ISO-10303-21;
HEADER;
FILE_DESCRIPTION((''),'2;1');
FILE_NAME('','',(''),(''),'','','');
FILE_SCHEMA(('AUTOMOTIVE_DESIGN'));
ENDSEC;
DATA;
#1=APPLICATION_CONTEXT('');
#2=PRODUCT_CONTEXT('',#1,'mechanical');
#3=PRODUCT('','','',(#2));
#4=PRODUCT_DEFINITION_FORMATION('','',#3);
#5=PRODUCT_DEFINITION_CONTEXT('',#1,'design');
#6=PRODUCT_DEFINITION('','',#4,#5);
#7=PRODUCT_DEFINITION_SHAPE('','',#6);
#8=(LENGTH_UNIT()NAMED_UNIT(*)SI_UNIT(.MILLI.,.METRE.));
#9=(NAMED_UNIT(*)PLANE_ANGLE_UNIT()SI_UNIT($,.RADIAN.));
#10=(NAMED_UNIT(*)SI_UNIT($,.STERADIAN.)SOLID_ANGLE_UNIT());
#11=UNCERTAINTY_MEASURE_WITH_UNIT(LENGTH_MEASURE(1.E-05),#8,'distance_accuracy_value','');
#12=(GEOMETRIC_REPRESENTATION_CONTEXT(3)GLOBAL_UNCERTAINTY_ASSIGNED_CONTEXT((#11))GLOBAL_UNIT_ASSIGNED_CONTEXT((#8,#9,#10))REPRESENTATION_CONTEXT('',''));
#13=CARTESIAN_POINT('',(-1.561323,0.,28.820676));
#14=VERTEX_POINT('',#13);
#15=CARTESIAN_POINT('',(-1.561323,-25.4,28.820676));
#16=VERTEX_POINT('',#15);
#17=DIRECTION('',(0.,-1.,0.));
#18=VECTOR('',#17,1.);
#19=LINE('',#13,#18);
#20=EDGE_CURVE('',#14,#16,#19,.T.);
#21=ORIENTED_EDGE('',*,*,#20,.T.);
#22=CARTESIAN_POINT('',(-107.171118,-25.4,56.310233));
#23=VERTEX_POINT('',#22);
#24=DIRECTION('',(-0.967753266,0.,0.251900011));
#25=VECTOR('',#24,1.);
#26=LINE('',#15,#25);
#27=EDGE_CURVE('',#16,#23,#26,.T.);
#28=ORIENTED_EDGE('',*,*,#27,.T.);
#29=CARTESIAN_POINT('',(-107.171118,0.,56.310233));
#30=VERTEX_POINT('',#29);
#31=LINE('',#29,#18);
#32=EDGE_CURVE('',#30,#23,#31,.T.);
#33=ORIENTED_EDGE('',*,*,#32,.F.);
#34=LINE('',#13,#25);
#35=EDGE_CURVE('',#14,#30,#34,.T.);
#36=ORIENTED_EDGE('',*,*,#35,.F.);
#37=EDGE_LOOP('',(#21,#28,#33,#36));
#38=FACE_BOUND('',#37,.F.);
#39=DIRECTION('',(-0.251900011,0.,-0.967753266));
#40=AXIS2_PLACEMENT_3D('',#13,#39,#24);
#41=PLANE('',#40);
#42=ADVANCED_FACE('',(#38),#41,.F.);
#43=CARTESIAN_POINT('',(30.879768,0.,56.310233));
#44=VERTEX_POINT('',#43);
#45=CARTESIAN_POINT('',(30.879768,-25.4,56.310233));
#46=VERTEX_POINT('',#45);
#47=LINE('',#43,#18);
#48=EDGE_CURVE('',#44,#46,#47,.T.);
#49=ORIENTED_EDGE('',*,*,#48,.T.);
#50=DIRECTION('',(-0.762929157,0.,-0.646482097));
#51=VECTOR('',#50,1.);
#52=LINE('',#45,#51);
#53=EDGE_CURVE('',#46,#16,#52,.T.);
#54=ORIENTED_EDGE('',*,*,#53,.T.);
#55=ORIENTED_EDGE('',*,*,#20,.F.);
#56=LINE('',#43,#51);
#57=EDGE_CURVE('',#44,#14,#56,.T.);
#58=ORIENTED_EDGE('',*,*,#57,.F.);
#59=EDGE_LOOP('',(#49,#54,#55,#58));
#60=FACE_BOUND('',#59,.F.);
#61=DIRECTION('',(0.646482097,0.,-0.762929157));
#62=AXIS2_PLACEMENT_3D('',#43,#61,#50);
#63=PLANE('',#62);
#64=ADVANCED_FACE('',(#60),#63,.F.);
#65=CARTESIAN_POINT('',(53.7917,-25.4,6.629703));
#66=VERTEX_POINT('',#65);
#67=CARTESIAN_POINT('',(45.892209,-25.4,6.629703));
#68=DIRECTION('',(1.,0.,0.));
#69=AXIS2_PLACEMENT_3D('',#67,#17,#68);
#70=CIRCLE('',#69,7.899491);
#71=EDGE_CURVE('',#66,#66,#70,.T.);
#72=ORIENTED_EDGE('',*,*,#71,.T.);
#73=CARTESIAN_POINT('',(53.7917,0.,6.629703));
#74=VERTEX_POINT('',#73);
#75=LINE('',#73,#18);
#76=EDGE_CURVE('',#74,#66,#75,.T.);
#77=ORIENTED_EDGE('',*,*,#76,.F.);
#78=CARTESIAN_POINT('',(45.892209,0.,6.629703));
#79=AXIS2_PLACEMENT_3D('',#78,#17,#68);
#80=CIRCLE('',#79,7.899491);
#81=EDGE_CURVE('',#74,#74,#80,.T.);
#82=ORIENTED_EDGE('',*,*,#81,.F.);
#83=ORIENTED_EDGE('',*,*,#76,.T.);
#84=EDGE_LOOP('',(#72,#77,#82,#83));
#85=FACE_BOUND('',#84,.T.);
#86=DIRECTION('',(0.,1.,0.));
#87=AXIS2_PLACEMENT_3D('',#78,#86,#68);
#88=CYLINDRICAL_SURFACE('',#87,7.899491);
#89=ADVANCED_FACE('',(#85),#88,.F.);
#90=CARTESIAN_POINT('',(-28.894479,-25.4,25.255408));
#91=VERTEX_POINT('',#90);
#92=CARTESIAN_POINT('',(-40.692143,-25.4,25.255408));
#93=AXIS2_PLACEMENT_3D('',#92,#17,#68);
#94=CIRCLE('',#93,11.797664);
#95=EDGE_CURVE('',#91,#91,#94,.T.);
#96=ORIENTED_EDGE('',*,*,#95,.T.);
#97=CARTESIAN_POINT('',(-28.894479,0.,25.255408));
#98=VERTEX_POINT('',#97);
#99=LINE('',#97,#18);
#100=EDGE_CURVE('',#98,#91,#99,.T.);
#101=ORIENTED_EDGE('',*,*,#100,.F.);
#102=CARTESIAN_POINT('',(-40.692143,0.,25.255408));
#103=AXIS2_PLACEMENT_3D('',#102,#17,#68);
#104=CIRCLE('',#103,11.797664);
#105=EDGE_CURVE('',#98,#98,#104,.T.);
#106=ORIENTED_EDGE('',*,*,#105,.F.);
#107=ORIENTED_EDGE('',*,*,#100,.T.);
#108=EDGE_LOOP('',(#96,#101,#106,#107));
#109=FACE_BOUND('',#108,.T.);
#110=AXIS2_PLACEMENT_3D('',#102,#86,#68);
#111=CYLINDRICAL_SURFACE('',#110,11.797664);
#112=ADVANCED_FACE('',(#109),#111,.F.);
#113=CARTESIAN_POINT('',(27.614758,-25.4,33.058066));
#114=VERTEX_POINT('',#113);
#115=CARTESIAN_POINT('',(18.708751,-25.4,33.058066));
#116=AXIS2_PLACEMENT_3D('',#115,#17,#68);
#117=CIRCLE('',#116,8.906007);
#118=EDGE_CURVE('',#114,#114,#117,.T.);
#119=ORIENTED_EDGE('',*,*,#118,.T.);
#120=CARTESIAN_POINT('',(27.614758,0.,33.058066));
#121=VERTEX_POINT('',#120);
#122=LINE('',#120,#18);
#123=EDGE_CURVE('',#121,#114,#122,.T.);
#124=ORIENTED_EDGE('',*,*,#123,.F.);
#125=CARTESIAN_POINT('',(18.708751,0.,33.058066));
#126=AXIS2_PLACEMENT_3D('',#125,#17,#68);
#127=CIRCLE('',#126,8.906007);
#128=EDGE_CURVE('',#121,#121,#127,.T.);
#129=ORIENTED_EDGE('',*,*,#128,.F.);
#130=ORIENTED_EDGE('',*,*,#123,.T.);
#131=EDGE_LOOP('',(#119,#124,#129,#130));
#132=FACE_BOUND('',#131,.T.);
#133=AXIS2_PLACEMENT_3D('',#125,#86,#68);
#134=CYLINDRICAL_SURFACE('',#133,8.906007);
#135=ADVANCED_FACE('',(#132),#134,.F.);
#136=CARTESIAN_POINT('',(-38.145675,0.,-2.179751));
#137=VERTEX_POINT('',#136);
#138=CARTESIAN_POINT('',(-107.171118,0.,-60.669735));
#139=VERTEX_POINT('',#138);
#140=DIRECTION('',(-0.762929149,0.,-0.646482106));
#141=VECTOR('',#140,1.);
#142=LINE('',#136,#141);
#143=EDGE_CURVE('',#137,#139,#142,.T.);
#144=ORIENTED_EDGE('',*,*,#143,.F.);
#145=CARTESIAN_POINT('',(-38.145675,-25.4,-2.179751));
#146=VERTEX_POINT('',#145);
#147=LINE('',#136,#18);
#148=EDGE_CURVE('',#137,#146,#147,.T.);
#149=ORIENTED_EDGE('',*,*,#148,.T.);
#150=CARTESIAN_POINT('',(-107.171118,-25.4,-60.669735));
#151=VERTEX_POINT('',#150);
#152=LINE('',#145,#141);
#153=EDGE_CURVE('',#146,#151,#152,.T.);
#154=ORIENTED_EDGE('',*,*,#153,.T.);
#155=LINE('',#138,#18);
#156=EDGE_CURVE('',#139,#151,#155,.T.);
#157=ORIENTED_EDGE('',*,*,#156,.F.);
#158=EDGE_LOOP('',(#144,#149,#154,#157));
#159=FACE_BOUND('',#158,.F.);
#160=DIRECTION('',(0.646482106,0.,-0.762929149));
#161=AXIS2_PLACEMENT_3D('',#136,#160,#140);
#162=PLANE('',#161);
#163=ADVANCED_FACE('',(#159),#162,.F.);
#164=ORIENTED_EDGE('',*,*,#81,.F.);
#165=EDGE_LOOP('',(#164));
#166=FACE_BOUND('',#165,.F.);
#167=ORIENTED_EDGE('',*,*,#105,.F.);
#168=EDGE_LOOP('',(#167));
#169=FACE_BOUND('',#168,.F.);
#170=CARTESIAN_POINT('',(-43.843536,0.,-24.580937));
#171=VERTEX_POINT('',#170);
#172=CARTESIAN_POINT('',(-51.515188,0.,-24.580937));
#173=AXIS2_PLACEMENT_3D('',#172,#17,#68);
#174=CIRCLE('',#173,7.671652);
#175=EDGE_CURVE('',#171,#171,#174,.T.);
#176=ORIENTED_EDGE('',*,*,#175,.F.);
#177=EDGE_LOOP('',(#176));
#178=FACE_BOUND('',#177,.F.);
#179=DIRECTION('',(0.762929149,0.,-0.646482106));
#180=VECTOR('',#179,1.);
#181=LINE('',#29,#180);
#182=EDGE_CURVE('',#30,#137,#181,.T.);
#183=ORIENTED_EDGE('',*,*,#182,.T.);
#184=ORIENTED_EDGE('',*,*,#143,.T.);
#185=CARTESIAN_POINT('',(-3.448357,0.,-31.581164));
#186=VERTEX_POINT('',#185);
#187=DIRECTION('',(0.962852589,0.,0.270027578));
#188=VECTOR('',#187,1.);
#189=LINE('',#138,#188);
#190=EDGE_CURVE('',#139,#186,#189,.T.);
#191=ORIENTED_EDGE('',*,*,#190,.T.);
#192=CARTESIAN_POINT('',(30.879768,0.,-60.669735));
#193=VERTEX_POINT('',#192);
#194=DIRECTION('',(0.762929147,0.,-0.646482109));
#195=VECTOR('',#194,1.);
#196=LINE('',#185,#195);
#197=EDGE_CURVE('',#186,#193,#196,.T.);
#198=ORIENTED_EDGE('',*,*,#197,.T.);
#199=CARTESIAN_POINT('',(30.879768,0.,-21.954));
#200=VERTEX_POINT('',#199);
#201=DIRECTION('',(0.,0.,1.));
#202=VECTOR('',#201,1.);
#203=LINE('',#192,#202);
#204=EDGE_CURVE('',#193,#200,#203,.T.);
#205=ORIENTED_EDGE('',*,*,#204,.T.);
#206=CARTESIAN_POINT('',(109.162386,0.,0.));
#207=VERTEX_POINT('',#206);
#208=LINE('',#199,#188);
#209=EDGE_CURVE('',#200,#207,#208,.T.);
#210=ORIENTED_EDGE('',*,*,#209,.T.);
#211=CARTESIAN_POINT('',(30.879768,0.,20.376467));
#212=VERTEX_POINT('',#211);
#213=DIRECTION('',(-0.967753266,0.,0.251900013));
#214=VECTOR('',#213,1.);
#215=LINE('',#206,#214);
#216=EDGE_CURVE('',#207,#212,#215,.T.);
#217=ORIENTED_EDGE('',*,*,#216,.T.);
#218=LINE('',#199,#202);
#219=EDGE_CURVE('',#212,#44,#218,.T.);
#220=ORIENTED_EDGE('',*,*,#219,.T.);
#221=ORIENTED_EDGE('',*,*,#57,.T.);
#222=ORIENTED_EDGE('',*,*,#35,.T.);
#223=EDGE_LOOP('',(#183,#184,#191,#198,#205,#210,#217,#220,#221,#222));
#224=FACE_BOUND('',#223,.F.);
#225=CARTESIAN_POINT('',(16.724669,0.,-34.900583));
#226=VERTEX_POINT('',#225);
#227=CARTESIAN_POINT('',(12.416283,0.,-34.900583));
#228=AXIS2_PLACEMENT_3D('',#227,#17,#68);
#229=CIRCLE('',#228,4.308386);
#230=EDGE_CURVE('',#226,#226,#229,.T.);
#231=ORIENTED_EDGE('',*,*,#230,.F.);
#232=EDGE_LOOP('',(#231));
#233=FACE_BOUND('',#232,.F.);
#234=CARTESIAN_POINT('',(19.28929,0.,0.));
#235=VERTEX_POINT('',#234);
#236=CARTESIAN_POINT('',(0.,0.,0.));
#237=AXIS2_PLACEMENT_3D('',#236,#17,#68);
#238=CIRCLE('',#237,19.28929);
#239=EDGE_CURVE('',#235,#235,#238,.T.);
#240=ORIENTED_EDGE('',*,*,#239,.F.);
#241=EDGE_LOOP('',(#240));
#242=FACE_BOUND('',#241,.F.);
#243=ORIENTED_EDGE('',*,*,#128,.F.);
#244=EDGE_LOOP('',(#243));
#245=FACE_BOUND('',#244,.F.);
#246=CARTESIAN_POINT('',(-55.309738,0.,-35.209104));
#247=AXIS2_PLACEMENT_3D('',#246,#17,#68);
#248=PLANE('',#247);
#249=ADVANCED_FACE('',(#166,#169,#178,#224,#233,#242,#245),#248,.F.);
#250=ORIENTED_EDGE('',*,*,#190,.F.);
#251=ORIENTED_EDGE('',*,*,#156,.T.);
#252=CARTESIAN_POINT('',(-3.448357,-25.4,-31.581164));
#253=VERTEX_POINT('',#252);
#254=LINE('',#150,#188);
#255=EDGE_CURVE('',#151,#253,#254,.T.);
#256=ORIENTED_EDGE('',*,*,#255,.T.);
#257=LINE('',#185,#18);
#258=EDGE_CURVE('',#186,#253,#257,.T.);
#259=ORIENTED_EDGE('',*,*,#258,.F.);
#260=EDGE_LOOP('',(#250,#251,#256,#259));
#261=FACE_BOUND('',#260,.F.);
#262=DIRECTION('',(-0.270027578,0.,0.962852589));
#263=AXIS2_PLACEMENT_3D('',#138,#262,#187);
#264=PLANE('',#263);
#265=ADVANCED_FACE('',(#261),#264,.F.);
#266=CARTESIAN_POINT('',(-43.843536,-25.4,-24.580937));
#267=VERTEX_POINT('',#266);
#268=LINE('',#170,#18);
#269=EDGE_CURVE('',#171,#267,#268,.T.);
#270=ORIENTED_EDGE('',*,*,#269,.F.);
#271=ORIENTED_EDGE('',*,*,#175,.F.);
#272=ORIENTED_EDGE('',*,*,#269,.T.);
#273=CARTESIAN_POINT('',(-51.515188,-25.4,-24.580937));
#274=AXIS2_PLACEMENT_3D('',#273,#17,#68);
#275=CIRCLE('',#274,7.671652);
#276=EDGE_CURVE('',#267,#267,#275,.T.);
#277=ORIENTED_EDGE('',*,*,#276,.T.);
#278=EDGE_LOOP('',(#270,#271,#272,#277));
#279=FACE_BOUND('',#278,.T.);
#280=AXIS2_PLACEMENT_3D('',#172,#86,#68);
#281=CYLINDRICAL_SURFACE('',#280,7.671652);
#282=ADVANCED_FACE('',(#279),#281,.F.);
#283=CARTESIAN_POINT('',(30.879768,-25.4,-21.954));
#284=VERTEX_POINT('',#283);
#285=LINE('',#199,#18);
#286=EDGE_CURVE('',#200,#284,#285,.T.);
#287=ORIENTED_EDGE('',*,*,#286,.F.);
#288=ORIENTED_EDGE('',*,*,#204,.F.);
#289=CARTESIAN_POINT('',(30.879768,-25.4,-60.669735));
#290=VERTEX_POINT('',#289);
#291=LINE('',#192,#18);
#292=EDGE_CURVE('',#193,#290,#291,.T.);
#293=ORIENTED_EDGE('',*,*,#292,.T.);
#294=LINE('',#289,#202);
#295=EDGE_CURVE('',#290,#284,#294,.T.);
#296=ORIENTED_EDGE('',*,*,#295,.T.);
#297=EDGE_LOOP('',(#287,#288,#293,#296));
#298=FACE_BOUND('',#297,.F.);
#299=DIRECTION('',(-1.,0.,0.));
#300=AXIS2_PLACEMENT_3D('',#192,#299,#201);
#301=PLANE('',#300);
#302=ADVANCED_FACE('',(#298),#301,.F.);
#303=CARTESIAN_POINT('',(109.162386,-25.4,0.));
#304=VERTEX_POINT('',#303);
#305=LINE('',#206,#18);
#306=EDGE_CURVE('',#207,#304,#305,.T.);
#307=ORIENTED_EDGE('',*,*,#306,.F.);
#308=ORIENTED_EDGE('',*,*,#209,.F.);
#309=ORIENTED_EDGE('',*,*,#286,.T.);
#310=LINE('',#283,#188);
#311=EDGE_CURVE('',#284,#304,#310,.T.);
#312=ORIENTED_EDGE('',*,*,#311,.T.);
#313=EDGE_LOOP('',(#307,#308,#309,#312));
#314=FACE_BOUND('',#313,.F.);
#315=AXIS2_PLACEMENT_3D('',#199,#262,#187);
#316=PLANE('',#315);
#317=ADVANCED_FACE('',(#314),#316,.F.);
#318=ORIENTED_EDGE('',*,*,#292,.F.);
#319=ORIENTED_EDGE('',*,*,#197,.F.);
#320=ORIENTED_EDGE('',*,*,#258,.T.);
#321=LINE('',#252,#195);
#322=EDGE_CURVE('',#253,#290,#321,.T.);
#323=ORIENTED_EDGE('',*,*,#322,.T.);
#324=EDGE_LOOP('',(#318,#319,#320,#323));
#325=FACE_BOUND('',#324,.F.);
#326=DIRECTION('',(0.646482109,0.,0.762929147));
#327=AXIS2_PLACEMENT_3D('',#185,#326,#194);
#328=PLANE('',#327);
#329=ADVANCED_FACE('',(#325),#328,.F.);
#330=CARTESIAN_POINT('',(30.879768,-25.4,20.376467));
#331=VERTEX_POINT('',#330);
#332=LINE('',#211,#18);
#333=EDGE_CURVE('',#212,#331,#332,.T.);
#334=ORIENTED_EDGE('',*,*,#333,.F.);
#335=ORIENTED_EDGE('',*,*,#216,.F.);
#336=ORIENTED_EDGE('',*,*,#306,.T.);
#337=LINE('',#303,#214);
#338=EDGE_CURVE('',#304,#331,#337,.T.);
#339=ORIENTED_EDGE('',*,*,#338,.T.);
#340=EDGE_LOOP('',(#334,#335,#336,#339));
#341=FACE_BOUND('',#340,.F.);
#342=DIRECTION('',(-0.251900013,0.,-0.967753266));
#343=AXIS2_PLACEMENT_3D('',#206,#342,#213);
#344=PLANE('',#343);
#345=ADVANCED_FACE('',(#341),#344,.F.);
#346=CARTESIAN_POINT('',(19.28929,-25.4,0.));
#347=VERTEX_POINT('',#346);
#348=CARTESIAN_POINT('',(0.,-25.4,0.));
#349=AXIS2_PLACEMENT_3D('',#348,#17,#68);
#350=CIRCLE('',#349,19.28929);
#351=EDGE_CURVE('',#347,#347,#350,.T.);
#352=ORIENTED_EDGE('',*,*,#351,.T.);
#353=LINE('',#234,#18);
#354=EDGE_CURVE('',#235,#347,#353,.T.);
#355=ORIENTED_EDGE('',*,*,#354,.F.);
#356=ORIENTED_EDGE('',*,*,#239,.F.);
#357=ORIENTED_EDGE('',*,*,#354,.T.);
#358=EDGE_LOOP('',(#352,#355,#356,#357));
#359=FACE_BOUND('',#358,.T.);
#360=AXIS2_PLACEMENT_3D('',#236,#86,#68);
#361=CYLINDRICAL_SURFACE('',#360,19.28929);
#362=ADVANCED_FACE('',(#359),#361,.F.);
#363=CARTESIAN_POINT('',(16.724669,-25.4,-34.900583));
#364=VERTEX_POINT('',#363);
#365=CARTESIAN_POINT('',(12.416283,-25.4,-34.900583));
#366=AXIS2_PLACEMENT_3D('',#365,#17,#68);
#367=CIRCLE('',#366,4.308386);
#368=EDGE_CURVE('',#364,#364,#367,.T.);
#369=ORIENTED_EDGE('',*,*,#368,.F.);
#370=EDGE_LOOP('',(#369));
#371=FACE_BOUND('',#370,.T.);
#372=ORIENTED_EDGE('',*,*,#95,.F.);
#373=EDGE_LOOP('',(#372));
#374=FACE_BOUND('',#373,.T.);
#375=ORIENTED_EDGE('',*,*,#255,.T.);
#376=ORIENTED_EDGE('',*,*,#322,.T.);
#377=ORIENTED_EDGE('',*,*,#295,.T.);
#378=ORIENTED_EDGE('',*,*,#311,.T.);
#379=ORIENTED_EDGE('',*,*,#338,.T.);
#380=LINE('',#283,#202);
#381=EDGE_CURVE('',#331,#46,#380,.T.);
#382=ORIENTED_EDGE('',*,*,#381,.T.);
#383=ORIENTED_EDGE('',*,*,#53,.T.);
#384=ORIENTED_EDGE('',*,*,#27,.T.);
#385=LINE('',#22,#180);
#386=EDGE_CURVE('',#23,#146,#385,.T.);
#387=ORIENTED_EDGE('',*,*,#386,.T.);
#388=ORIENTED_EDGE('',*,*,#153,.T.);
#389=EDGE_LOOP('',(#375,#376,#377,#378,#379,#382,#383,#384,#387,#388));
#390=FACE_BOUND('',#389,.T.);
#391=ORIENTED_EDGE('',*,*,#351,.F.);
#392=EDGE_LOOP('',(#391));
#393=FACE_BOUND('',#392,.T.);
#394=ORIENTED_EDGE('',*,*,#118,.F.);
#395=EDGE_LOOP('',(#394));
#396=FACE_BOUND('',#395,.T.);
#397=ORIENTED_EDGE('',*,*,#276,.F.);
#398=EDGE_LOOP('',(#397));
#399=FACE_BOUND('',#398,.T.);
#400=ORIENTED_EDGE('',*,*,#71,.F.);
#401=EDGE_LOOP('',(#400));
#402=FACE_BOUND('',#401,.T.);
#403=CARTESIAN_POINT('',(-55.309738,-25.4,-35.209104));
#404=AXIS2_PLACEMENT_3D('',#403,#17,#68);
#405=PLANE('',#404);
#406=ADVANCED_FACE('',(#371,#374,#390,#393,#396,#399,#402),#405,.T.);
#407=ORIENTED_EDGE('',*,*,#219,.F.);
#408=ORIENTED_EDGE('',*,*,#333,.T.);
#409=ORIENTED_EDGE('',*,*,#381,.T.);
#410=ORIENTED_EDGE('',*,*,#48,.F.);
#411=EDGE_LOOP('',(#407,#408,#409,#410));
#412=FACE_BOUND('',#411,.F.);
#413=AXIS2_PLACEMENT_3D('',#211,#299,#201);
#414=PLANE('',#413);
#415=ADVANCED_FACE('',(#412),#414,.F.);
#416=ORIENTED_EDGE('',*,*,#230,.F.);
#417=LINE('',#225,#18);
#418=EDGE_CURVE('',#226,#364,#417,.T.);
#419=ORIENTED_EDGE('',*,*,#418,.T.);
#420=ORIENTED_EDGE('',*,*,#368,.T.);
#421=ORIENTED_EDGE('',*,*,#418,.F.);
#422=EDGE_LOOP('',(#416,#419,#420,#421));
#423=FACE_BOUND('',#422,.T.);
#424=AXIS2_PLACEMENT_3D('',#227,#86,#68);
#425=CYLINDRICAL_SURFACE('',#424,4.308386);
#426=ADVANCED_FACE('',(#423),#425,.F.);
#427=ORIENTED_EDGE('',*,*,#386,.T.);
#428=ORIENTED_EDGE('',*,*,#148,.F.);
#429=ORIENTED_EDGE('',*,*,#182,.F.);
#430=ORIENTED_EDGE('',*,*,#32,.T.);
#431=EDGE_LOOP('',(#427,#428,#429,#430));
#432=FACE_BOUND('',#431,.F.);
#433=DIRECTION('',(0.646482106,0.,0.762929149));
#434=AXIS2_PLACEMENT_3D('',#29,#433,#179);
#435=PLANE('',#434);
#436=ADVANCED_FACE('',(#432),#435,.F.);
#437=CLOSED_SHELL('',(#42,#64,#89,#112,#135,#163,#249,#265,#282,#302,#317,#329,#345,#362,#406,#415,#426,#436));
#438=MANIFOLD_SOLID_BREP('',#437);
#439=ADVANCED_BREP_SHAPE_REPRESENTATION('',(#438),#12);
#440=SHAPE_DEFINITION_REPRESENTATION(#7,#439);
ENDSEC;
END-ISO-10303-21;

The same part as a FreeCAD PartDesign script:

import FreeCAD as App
import Part
import Sketcher
Q = App.Units.Quantity


def add_polygon(sketch, points):
    """Adds a closed chain of lines whose ends are joined by coincident constraints."""
    first, n = sketch.GeometryCount, len(points)
    for a, b in zip(points, points[1:] + points[:1]):
        sketch.addGeometry(Part.LineSegment(App.Vector(*a, 0), App.Vector(*b, 0)), False)
    for i in range(n):
        sketch.addConstraint(Sketcher.Constraint("Coincident", first + i, 2, first + (i + 1) % n, 1))

doc = App.newDocument("Part")
body = doc.addObject("PartDesign::Body", "Body")

sketch1 = doc.addObject("Sketcher::SketchObject", "Sketch")
body.addObject(sketch1)
sketch1.AttachmentSupport = (doc.XZ_Plane, [""])
sketch1.MapMode = "FlatFace"
add_polygon(sketch1, [(-38.145675, -2.179751), (-107.171118, -60.669735), (-3.448357, -31.581164), (30.879768, -60.669735), (30.879768, -21.954), (109.162386, 0), (30.879768, 20.376467), (30.879768, 56.310233), (-1.561323, 28.820676), (-107.171118, 56.310233)])
sketch1.addGeometry(Part.Circle(App.Vector(-51.515188, -24.580937, 0), App.Vector(0, 0, 1), 7.671652), False)
sketch1.addGeometry(Part.Circle(App.Vector(12.416283, -34.900583, 0), App.Vector(0, 0, 1), 4.308386), False)
sketch1.addGeometry(Part.Circle(App.Vector(0, 0, 0), App.Vector(0, 0, 1), 19.28929), False)
sketch1.addGeometry(Part.Circle(App.Vector(-40.692143, 25.255408, 0), App.Vector(0, 0, 1), 11.797664), False)
sketch1.addGeometry(Part.Circle(App.Vector(45.892209, 6.629703, 0), App.Vector(0, 0, 1), 7.899491), False)
sketch1.addGeometry(Part.Circle(App.Vector(18.708751, 33.058066, 0), App.Vector(0, 0, 1), 8.906007), False)
sketch1.addConstraint([
    Sketcher.Constraint("Vertical", 3),
    Sketcher.Constraint("Vertical", 6),
    Sketcher.Constraint("Coincident", 12, 3, -1, 1),
    Sketcher.Constraint("PointOnObject", 4, 2, -1),
    Sketcher.Constraint("Parallel", 1, 4),
    Sketcher.Constraint("Parallel", 0, 7),
    Sketcher.Constraint("Parallel", 5, 8),
    Sketcher.Constraint("Parallel", 2, 9),
    Sketcher.Constraint("Horizontal", 0, 2, 2, 2),
    Sketcher.Constraint("Horizontal", 6, 2, 8, 2),
    Sketcher.Constraint("Vertical", 3, 2, 5, 2),
    Sketcher.Constraint("Vertical", 0, 2, 8, 2),
    Sketcher.Constraint("Equal", 0, 9),
    Sketcher.Constraint("Diameter", 11, Q("8.616772 mm")),
    Sketcher.Constraint("Diameter", 12, Q("38.57858 mm")),
    Sketcher.Constraint("Diameter", 10, Q("15.343304 mm")),
    Sketcher.Constraint("Diameter", 13, Q("23.595328 mm")),
    Sketcher.Constraint("Diameter", 14, Q("15.798982 mm")),
    Sketcher.Constraint("Diameter", 15, Q("17.812014 mm")),
    Sketcher.Constraint("DistanceY", 3, 2, -1, 1, Q("21.954 mm")),
    Sketcher.Constraint("DistanceY", 0, 2, 10, 3, Q("36.088798 mm")),
    Sketcher.Constraint("DistanceX", 0, 2, 11, 3, Q("119.587401 mm")),
    Sketcher.Constraint("DistanceY", 0, 2, 15, 3, Q("93.727801 mm")),
    Sketcher.Constraint("DistanceY", 5, 2, 15, 3, Q("12.681599 mm")),
    Sketcher.Constraint("Distance", 0, Q("90.474251 mm")),
    Sketcher.Constraint("Distance", 5, Q("80.891092 mm")),
    Sketcher.Constraint("Distance", 7, Q("42.521761 mm")),
    Sketcher.Constraint("DistanceY", 3, 1, 3, 2, Q("38.715735 mm")),
    Sketcher.Constraint("DistanceY", 6, 1, 6, 2, Q("35.933766 mm")),
    Sketcher.Constraint("DistanceX", 10, 3, -1, 1, Q("51.515188 mm")),
    Sketcher.Constraint("DistanceX", -1, 1, 14, 3, Q("45.892209 mm")),
    Sketcher.Constraint("DistanceX", -1, 1, 15, 3, Q("18.708751 mm")),
    Sketcher.Constraint("DistanceX", 0, 2, -1, 1, Q("107.171118 mm")),
    Sketcher.Constraint("DistanceY", 11, 3, 13, 3, Q("60.155991 mm")),
    Sketcher.Constraint("DistanceX", 13, 3, 14, 3, Q("86.584352 mm")),
    Sketcher.Constraint("DistanceY", 10, 3, 14, 3, Q("31.21064 mm")),
    Sketcher.Constraint("DistanceY", 11, 3, 15, 3, Q("67.958649 mm")),
])
pad1 = doc.addObject("PartDesign::Pad", "Pad")
body.addObject(pad1)
pad1.Profile = sketch1
pad1.Length = Q("1 in")

doc.recompute()
